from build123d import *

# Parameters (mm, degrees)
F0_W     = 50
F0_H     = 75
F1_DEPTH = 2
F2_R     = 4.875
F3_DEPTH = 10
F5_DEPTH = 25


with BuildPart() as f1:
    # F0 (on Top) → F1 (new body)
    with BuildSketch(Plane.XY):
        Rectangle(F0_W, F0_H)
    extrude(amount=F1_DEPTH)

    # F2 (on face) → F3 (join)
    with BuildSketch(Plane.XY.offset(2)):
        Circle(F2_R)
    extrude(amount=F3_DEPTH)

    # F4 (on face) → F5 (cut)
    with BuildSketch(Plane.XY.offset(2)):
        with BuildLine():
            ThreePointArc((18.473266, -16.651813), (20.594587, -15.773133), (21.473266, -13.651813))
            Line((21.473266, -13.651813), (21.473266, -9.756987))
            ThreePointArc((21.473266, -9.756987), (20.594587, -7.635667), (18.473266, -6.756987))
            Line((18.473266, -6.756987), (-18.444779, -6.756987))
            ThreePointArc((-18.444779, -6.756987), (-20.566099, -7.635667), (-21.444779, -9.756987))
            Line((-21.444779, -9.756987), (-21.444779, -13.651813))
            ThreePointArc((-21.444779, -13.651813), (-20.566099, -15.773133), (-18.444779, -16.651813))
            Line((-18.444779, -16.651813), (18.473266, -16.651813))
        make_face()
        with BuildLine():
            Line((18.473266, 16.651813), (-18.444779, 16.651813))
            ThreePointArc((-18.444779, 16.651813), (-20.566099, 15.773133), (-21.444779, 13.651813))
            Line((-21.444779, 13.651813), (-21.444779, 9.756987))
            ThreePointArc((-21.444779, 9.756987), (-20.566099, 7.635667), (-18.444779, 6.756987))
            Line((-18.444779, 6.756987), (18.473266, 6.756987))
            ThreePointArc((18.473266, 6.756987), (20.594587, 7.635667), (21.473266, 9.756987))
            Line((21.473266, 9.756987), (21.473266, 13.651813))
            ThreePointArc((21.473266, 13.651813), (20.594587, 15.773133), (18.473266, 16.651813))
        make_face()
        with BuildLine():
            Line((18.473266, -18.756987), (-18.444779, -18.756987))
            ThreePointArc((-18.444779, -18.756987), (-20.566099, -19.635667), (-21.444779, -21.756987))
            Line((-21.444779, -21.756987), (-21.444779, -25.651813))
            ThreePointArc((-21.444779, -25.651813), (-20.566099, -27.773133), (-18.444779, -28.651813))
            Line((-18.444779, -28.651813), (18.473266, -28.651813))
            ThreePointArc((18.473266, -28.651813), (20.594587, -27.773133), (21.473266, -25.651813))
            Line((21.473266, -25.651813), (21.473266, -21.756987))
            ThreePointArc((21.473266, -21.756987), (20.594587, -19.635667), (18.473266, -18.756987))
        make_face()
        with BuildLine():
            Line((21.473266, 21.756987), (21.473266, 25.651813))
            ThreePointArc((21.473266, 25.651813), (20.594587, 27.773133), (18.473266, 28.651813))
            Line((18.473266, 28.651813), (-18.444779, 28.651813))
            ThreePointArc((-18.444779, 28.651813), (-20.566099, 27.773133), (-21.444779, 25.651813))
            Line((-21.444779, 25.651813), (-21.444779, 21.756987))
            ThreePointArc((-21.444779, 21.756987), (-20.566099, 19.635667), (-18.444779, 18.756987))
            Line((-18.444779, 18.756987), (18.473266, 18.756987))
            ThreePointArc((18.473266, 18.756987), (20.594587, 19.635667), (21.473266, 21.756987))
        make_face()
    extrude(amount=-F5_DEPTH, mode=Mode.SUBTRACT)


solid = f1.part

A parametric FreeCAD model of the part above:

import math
import FreeCAD as App
import Part
import Sketcher
from FreeCAD import Vector
Q = App.Units.Quantity

doc = App.newDocument("Part")
params = doc.addObject("Spreadsheet::Sheet", "Params")
for row, (alias, value) in enumerate([
    ("sketch1_width", "50 mm"),
    ("sketch1_height", "75 mm"),
    ("pad1_length", "2 mm"),
    ("sketch2_diameter", "9.75 mm"),
    ("pad2_length", "10 mm"),
    ("sketch3_radius", "2.999999 mm"),
    ("pocket1_length", "25 mm"),
], start=1):
    params.set(f"A{row}", alias)
    params.set(f"B{row}", "=" + value)
    params.setAlias(f"B{row}", alias)

body = doc.addObject("PartDesign::Body", "Body")

# Sketch on XY plane
sketch1 = doc.addObject("Sketcher::SketchObject", "Sketch")
body.addObject(sketch1)
sketch1.AttachmentSupport = (doc.XY_Plane, [""])
sketch1.MapMode = "FlatFace"
sketch1.addGeometry([
    Part.LineSegment(Vector(-25, 38, 0), Vector(-25, -38, 0)),
    Part.LineSegment(Vector(-25, -38, 0), Vector(25, -38, 0)),
    Part.LineSegment(Vector(25, -38, 0), Vector(25, 38, 0)),
    Part.LineSegment(Vector(25, 38, 0), Vector(-25, 38, 0)),
], False)
sketch1.addConstraint([
    Sketcher.Constraint("Coincident", 0, 2, 1, 1),
    Sketcher.Constraint("Coincident", 1, 2, 2, 1),
    Sketcher.Constraint("Coincident", 2, 2, 3, 1),
    Sketcher.Constraint("Coincident", 3, 2, 0, 1),
    Sketcher.Constraint("Vertical", 0),
    Sketcher.Constraint("Horizontal", 1),
    Sketcher.Constraint("Vertical", 2),
    Sketcher.Constraint("Horizontal", 3),
    Sketcher.Constraint("Symmetric", 0, 2, 2, 2, -1, 1),
    Sketcher.Constraint("DistanceX", 1, 1, 1, 2, Q("50 mm")),
    Sketcher.Constraint("DistanceY", 0, 2, 0, 1, Q("75 mm")),
])
sketch1.setExpression("Constraints[9]", "Params.sketch1_width")
sketch1.setExpression("Constraints[10]", "Params.sketch1_height")
pad1 = doc.addObject("PartDesign::Pad", "Pad")
body.addObject(pad1)
pad1.Profile = sketch1
pad1.setExpression("Length", "Params.pad1_length")

# Sketch on XY plane
sketch2 = doc.addObject("Sketcher::SketchObject", "Sketch001")
body.addObject(sketch2)
sketch2.AttachmentSupport = (doc.XY_Plane, [""])
sketch2.MapMode = "FlatFace"
sketch2.AttachmentOffset = App.Placement(Vector(0, 0, 2), App.Rotation())
sketch2.addGeometry(Part.Circle(Vector(0, 0, 0), Vector(0, 0, 1), 4.9), False)
sketch2.addConstraint([
    Sketcher.Constraint("Coincident", 0, 3, -1, 1),
    Sketcher.Constraint("Diameter", 0, Q("9.75 mm")),
])
sketch2.setExpression("Constraints[1]", "Params.sketch2_diameter")
pad2 = doc.addObject("PartDesign::Pad", "Pad001")
body.addObject(pad2)
pad2.Profile = sketch2
pad2.setExpression("Length", "Params.pad2_length")

# Sketch on XY plane
sketch3 = doc.addObject("Sketcher::SketchObject", "Sketch002")
body.addObject(sketch3)
sketch3.AttachmentSupport = (doc.XY_Plane, [""])
sketch3.MapMode = "FlatFace"
sketch3.AttachmentOffset = App.Placement(Vector(0, 0, 2), App.Rotation())
sketch3.addGeometry([
    Part.ArcOfCircle(Part.Circle(Vector(18.5, -13.7, 0), Vector(0, 0, 1), 3), math.radians(-90), math.radians(0)),  # 0
    Part.LineSegment(Vector(21.5, -13.7, 0), Vector(21.5, -9.8, 0)),  # 1
    Part.ArcOfCircle(Part.Circle(Vector(18.5, -9.8, 0), Vector(0, 0, 1), 3), math.radians(0), math.radians(90)),  # 2
    Part.LineSegment(Vector(18.5, -6.8, 0), Vector(-18.4, -6.8, 0)),  # 3
    Part.ArcOfCircle(Part.Circle(Vector(-18.4, -9.8, 0), Vector(0, 0, 1), 3), math.radians(90), math.radians(180)),  # 4
    Part.LineSegment(Vector(-21.4, -9.8, 0), Vector(-21.4, -13.7, 0)),  # 5
    Part.ArcOfCircle(Part.Circle(Vector(-18.4, -13.7, 0), Vector(0, 0, 1), 3), math.radians(-180), math.radians(-90)),  # 6
    Part.LineSegment(Vector(-18.4, -16.7, 0), Vector(18.5, -16.7, 0)),  # 7
    Part.LineSegment(Vector(18.5, 16.7, 0), Vector(-18.4, 16.7, 0)),  # 8
    Part.ArcOfCircle(Part.Circle(Vector(-18.4, 13.7, 0), Vector(0, 0, 1), 3), math.radians(90), math.radians(180)),  # 9
    Part.LineSegment(Vector(-21.4, 13.7, 0), Vector(-21.4, 9.8, 0)),  # 10
    Part.ArcOfCircle(Part.Circle(Vector(-18.4, 9.8, 0), Vector(0, 0, 1), 3), math.radians(-180), math.radians(-90)),  # 11
    Part.LineSegment(Vector(-18.4, 6.8, 0), Vector(18.5, 6.8, 0)),  # 12
    Part.ArcOfCircle(Part.Circle(Vector(18.5, 9.8, 0), Vector(0, 0, 1), 3), math.radians(-90), math.radians(0)),  # 13
    Part.LineSegment(Vector(21.5, 9.8, 0), Vector(21.5, 13.7, 0)),  # 14
    Part.ArcOfCircle(Part.Circle(Vector(18.5, 13.7, 0), Vector(0, 0, 1), 3), math.radians(0), math.radians(90)),  # 15
    Part.LineSegment(Vector(18.5, -18.8, 0), Vector(-18.4, -18.8, 0)),  # 16
    Part.ArcOfCircle(Part.Circle(Vector(-18.4, -21.8, 0), Vector(0, 0, 1), 3), math.radians(90), math.radians(180)),  # 17
    Part.LineSegment(Vector(-21.4, -21.8, 0), Vector(-21.4, -25.7, 0)),  # 18
    Part.ArcOfCircle(Part.Circle(Vector(-18.4, -25.7, 0), Vector(0, 0, 1), 3), math.radians(-180), math.radians(-90)),  # 19
    Part.LineSegment(Vector(-18.4, -28.7, 0), Vector(18.5, -28.7, 0)),  # 20
    Part.ArcOfCircle(Part.Circle(Vector(18.5, -25.7, 0), Vector(0, 0, 1), 3), math.radians(-90), math.radians(0)),  # 21
    Part.LineSegment(Vector(21.5, -25.7, 0), Vector(21.5, -21.8, 0)),  # 22
    Part.ArcOfCircle(Part.Circle(Vector(18.5, -21.8, 0), Vector(0, 0, 1), 3), math.radians(0), math.radians(90)),  # 23
    Part.LineSegment(Vector(21.5, 21.8, 0), Vector(21.5, 25.7, 0)),  # 24
    Part.ArcOfCircle(Part.Circle(Vector(18.5, 25.7, 0), Vector(0, 0, 1), 3), math.radians(0), math.radians(90)),  # 25
    Part.LineSegment(Vector(18.5, 28.7, 0), Vector(-18.4, 28.7, 0)),  # 26
    Part.ArcOfCircle(Part.Circle(Vector(-18.4, 25.7, 0), Vector(0, 0, 1), 3), math.radians(90), math.radians(180)),  # 27
    Part.LineSegment(Vector(-21.4, 25.7, 0), Vector(-21.4, 21.8, 0)),  # 28
    Part.ArcOfCircle(Part.Circle(Vector(-18.4, 21.8, 0), Vector(0, 0, 1), 3), math.radians(-180), math.radians(-90)),  # 29
    Part.LineSegment(Vector(-18.4, 18.8, 0), Vector(18.5, 18.8, 0)),  # 30
    Part.ArcOfCircle(Part.Circle(Vector(18.5, 21.8, 0), Vector(0, 0, 1), 3), math.radians(-90), math.radians(0)),  # 31
], False)
sketch3.addConstraint([
    Sketcher.Constraint("Tangent", 0, 2, 1, 1),
    Sketcher.Constraint("Tangent", 1, 2, 2, 1),
    Sketcher.Constraint("Tangent", 2, 2, 3, 1),
    Sketcher.Constraint("Tangent", 3, 2, 4, 1),
    Sketcher.Constraint("Tangent", 4, 2, 5, 1),
    Sketcher.Constraint("Tangent", 5, 2, 6, 1),
    Sketcher.Constraint("Tangent", 6, 2, 7, 1),
    Sketcher.Constraint("Tangent", 7, 2, 0, 1),
    Sketcher.Constraint("Tangent", 8, 2, 9, 1),
    Sketcher.Constraint("Tangent", 9, 2, 10, 1),
    Sketcher.Constraint("Tangent", 10, 2, 11, 1),
    Sketcher.Constraint("Tangent", 11, 2, 12, 1),
    Sketcher.Constraint("Tangent", 12, 2, 13, 1),
    Sketcher.Constraint("Tangent", 13, 2, 14, 1),
    Sketcher.Constraint("Tangent", 14, 2, 15, 1),
    Sketcher.Constraint("Tangent", 15, 2, 8, 1),
    Sketcher.Constraint("Tangent", 16, 2, 17, 1),
    Sketcher.Constraint("Tangent", 17, 2, 18, 1),
    Sketcher.Constraint("Tangent", 18, 2, 19, 1),
    Sketcher.Constraint("Tangent", 19, 2, 20, 1),
    Sketcher.Constraint("Tangent", 20, 2, 21, 1),
    Sketcher.Constraint("Tangent", 21, 2, 22, 1),
    Sketcher.Constraint("Tangent", 22, 2, 23, 1),
    Sketcher.Constraint("Tangent", 23, 2, 16, 1),
    Sketcher.Constraint("Tangent", 24, 2, 25, 1),
    Sketcher.Constraint("Tangent", 25, 2, 26, 1),
    Sketcher.Constraint("Tangent", 26, 2, 27, 1),
    Sketcher.Constraint("Tangent", 27, 2, 28, 1),
    Sketcher.Constraint("Tangent", 28, 2, 29, 1),
    Sketcher.Constraint("Tangent", 29, 2, 30, 1),
    Sketcher.Constraint("Tangent", 30, 2, 31, 1),
    Sketcher.Constraint("Tangent", 31, 2, 24, 1),
    Sketcher.Constraint("Vertical", 1),
    Sketcher.Constraint("Horizontal", 3),
    Sketcher.Constraint("Vertical", 5),
    Sketcher.Constraint("Horizontal", 7),
    Sketcher.Constraint("Horizontal", 8),
    Sketcher.Constraint("Vertical", 10),
    Sketcher.Constraint("Horizontal", 12),
    Sketcher.Constraint("Vertical", 14),
    Sketcher.Constraint("Horizontal", 16),
    Sketcher.Constraint("Vertical", 18),
    Sketcher.Constraint("Horizontal", 20),
    Sketcher.Constraint("Vertical", 22),
    Sketcher.Constraint("Vertical", 24),
    Sketcher.Constraint("Horizontal", 26),
    Sketcher.Constraint("Vertical", 28),
    Sketcher.Constraint("Horizontal", 30),
    Sketcher.Constraint("Equal", 0, 2),
    Sketcher.Constraint("Equal", 2, 4),
    Sketcher.Constraint("Equal", 4, 6),
    Sketcher.Constraint("Equal", 6, 9),
    Sketcher.Constraint("Equal", 9, 11),
    Sketcher.Constraint("Equal", 11, 13),
    Sketcher.Constraint("Equal", 13, 15),
    Sketcher.Constraint("Equal", 15, 17),
    Sketcher.Constraint("Equal", 17, 19),
    Sketcher.Constraint("Equal", 19, 21),
    Sketcher.Constraint("Equal", 21, 23),
    Sketcher.Constraint("Equal", 23, 25),
    Sketcher.Constraint("Equal", 25, 27),
    Sketcher.Constraint("Equal", 27, 29),
    Sketcher.Constraint("Equal", 29, 31),
    Sketcher.Constraint("Symmetric", 6, 3, 9, 3, -1),
    Sketcher.Constraint("Symmetric", 2, 3, 13, 3, -1),
    Sketcher.Constraint("Symmetric", 21, 3, 25, 3, -1),
    Sketcher.Constraint("Symmetric", 17, 3, 29, 3, -1),
    Sketcher.Constraint("Vertical", 11, 3, 17, 3),
    Sketcher.Constraint("Vertical", 15, 3, 21, 3),
    Sketcher.Constraint("Equal", 14, 18),
    Sketcher.Constraint("Radius", 0, Q("2.999999 mm")),
    Sketcher.Constraint("DistanceY", 17, 3, 4, 3, Q("12 mm")),
    Sketcher.Constraint("DistanceY", 4, 3, 9, 3, Q("23.4088 mm")),
    Sketcher.Constraint("DistanceX", 3, 2, 3, 1, Q("36.918045 mm")),
    Sketcher.Constraint("DistanceY", 1, 1, 1, 2, Q("3.894826 mm")),
    Sketcher.Constraint("DistanceX", 3, 2, -1, 1, Q("18.444779 mm")),
])
sketch3.setExpression("Constraints[70]", "Params.sketch3_radius")
pocket1 = doc.addObject("PartDesign::Pocket", "Pocket")
body.addObject(pocket1)
pocket1.Profile = sketch3
pocket1.setExpression("Length", "Params.pocket1_length")

doc.recompute()
